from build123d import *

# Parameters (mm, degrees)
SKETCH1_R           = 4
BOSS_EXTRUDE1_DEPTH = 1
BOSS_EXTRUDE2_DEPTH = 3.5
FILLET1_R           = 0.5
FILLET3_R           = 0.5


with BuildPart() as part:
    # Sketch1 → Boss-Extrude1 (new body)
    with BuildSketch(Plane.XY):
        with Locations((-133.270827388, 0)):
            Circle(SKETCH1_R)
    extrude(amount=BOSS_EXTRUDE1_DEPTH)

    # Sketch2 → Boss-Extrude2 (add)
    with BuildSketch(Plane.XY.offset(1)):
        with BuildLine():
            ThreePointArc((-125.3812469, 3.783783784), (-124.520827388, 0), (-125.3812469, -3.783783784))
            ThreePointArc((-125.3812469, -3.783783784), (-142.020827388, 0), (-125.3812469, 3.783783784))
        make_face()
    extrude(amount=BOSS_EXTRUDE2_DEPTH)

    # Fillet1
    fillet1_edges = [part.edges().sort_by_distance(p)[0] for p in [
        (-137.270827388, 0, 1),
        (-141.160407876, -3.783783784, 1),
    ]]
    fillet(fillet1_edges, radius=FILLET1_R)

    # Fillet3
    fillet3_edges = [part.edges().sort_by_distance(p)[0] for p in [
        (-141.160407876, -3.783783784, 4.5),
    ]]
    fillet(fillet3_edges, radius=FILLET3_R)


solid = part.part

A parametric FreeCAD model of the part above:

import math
import FreeCAD as App
import Part
import Sketcher

V = App.Vector


def edges_at(feature, points):
    """Names of the edges that pass closest to the given points."""
    edges = feature.Shape.Edges
    near = lambda p: min(range(len(edges)), key=lambda i: edges[i].distToShape(Part.Vertex(*p))[0])
    return sorted({f"Edge{near(p) + 1}" for p in points})

doc = App.newDocument("Part")
body = doc.addObject("PartDesign::Body", "Body")

# Sketch on XY plane
sketch1 = doc.addObject("Sketcher::SketchObject", "Sketch")
body.addObject(sketch1)
sketch1.AttachmentSupport = (doc.XY_Plane, [""])
sketch1.MapMode = "FlatFace"
sketch1.addGeometry(Part.Circle(V(-133.270827, 0, 0), V(0, 0, 1), 4), False)
sketch1.addConstraint(Sketcher.Constraint("PointOnObject", 0, 3, -1))
sketch1.addConstraint(Sketcher.Constraint("Diameter", 0, 8.0))
sketch1.addConstraint(Sketcher.Constraint("DistanceX", 0, 3, -1, 1, 133.270827))
pad1 = doc.addObject("PartDesign::Pad", "Pad")
body.addObject(pad1)
pad1.Profile = sketch1
pad1.Length = 1

# Sketch on XY plane
sketch2 = doc.addObject("Sketcher::SketchObject", "Sketch001")
body.addObject(sketch2)
sketch2.AttachmentSupport = (doc.XY_Plane, [""])
sketch2.MapMode = "FlatFace"
sketch2.AttachmentOffset = App.Placement(V(0, 0, 1), App.Rotation())
sketch2.addGeometry(Part.ArcOfCircle(Part.Circle(V(-133.270827, 0, 0), V(0, 0, 1), 8.75), math.radians(-25.622028), math.radians(25.622028)), False)
sketch2.addGeometry(Part.ArcOfCircle(Part.Circle(V(-133.270827, 0, 0), V(0, 0, 1), 8.75), math.radians(25.622028), math.radians(334.377972)), False)
sketch2.addConstraint(Sketcher.Constraint("Tangent", 0, 1, 1, 2))
sketch2.addConstraint(Sketcher.Constraint("Coincident", 1, 1, 0, 2))
sketch2.addConstraint(Sketcher.Constraint("Symmetric", 0, 1, 1, 1, -1))
sketch2.addConstraint(Sketcher.Constraint("Radius", 0, 8.75))
sketch2.addConstraint(Sketcher.Constraint("DistanceX", 0, 3, 0, 1, 7.88958))
sketch2.addConstraint(Sketcher.Constraint("DistanceX", 0, 3, -1, 1, 133.270827))
pad2 = doc.addObject("PartDesign::Pad", "Pad001")
body.addObject(pad2)
pad2.Profile = sketch2
pad2.Length = 3.5
doc.recompute()

fillet = doc.addObject("PartDesign::Fillet", "Fillet")
body.addObject(fillet)
fillet.Base = (pad2, edges_at(pad2, [(-137.271, 0, 1), (-142.021, 0, 1)]))
fillet.Radius = 0.5
doc.recompute()

fillet2 = doc.addObject("PartDesign::Fillet", "Fillet001")
body.addObject(fillet2)
fillet2.Base = (fillet, edges_at(fillet, [(-142.021, 0, 4.5)]))
fillet2.Radius = 0.5

doc.recompute()
